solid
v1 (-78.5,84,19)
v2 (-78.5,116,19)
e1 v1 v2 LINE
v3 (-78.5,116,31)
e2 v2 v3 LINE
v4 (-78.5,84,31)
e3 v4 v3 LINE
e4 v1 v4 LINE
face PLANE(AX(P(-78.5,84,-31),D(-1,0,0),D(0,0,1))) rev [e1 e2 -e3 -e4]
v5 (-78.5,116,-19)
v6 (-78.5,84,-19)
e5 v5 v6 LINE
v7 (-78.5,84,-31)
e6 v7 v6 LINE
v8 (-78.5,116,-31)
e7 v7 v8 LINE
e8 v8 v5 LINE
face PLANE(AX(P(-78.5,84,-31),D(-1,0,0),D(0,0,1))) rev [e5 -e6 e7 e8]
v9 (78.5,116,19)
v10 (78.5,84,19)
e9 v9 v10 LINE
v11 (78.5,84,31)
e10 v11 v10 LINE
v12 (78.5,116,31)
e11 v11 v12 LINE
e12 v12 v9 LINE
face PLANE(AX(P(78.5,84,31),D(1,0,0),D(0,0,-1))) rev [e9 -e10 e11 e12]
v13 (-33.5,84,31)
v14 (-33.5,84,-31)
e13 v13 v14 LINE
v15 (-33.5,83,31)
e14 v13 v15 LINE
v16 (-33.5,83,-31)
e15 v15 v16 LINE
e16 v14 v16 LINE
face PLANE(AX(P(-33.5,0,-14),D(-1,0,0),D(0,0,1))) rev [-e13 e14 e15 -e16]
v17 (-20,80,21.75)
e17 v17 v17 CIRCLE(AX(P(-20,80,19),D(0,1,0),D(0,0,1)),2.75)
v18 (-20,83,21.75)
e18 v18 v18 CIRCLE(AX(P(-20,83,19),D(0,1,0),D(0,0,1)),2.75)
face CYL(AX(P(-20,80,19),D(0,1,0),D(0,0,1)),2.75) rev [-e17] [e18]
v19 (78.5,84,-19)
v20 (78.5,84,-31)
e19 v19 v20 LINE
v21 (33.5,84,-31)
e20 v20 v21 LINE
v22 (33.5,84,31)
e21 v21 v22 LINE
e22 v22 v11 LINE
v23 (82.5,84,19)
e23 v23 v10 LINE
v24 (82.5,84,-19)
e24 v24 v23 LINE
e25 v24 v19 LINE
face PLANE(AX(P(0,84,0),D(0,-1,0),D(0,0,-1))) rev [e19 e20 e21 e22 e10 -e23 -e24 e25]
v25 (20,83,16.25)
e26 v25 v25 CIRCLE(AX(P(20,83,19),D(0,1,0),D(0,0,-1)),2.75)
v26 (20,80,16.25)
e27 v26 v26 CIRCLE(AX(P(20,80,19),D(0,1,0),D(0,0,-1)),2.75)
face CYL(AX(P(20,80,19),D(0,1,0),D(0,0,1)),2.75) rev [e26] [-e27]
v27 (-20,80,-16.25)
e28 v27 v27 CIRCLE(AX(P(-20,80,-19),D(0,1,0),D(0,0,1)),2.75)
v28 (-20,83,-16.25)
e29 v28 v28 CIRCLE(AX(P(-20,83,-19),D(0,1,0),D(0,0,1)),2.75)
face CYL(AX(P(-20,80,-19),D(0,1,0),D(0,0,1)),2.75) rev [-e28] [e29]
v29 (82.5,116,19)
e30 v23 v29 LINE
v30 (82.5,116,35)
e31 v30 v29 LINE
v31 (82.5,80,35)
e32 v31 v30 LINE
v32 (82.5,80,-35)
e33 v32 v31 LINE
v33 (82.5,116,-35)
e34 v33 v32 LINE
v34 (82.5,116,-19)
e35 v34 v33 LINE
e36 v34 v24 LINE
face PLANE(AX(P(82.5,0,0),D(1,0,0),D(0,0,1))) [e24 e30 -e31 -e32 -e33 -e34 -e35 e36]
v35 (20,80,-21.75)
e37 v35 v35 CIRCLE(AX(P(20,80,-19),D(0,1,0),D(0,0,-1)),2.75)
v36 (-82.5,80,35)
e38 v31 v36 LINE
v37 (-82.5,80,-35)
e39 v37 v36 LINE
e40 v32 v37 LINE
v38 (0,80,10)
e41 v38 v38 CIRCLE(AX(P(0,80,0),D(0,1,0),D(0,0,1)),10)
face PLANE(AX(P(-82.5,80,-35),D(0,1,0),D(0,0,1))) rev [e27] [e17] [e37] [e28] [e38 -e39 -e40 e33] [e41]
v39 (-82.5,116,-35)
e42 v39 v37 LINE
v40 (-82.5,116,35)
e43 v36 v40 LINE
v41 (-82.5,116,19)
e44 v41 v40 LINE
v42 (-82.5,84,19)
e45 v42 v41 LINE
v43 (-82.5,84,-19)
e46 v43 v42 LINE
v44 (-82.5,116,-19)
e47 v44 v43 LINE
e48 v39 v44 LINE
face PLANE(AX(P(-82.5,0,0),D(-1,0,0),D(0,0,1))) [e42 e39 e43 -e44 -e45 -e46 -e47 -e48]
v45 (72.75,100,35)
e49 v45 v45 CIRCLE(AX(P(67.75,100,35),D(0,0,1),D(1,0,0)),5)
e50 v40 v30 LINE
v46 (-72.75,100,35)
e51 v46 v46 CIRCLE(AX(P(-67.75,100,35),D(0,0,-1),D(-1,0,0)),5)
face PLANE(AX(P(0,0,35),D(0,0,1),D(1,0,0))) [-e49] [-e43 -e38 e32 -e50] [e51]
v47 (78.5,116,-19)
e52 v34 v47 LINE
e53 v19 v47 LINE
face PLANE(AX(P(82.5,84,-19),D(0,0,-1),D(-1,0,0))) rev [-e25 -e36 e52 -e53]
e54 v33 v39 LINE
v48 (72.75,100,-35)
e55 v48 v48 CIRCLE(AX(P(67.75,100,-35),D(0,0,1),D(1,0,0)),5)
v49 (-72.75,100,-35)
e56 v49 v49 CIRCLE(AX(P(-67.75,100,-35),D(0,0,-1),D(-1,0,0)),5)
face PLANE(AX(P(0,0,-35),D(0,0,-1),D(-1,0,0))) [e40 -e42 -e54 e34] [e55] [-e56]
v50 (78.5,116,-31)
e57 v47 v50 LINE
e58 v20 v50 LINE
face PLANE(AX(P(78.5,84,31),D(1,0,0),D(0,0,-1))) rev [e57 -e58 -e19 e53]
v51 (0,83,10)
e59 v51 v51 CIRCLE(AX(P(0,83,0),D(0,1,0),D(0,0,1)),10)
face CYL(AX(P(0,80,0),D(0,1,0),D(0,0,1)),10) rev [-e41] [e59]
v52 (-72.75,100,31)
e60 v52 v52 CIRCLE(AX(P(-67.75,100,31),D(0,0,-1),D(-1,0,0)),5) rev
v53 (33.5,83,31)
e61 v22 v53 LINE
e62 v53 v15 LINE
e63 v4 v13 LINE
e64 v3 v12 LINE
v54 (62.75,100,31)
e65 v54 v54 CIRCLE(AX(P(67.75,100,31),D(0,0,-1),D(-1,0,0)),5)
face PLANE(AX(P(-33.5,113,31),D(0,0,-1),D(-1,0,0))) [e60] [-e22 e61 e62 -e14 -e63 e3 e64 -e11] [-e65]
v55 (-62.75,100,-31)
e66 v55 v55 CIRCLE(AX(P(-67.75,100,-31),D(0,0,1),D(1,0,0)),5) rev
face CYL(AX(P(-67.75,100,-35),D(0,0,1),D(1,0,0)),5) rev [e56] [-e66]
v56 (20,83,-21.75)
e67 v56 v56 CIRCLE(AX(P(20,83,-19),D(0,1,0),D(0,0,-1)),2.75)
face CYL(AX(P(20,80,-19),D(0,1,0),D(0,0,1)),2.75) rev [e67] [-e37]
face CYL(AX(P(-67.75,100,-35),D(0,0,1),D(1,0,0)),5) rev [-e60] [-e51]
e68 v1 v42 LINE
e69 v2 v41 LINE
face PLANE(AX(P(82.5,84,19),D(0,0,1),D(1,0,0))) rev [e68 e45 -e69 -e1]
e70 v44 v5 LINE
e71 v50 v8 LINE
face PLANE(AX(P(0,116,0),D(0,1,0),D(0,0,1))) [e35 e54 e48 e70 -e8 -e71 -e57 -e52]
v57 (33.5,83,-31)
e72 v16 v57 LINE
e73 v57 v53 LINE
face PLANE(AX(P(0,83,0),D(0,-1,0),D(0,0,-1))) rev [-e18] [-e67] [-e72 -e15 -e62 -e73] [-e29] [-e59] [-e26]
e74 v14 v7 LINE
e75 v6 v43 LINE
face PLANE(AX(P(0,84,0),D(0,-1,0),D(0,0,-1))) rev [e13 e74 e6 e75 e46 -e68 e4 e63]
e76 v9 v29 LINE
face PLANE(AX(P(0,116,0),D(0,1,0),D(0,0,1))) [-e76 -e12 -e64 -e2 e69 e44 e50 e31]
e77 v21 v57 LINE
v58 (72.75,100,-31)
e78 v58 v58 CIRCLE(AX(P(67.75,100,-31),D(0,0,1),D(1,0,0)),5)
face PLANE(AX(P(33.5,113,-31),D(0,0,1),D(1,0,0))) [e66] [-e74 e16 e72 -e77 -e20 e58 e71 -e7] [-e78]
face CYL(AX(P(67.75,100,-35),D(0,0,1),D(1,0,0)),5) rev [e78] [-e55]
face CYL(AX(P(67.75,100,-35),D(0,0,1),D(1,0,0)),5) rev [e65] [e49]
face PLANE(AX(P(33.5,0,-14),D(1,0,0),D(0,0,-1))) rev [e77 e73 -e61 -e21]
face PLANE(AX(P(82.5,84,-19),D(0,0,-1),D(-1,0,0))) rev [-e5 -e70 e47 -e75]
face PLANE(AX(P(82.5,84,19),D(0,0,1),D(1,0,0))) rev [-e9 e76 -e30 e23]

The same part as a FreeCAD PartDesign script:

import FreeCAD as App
import Part
import Sketcher


def add_polygon(sketch, points):
    """Adds a closed chain of lines whose ends are joined by coincident constraints."""
    first, n = sketch.GeometryCount, len(points)
    for a, b in zip(points, points[1:] + points[:1]):
        sketch.addGeometry(Part.LineSegment(App.Vector(*a, 0), App.Vector(*b, 0)), False)
    for i in range(n):
        sketch.addConstraint(Sketcher.Constraint("Coincident", first + i, 2, first + (i + 1) % n, 1))

doc = App.newDocument("Part")
body = doc.addObject("PartDesign::Body", "Body")

sketch1 = doc.addObject("Sketcher::SketchObject", "Sketch")
body.addObject(sketch1)
sketch1.AttachmentSupport = (doc.XZ_Plane, [""])
sketch1.MapMode = "FlatFace"
add_polygon(sketch1, [(-37.5, -20), (-37.5, 20), (37.5, 20), (37.5, -20)])
sketch1.addGeometry(Part.Circle(App.Vector(-30, 8.2, 0), App.Vector(0, 0, 1), 1.7), False)
sketch1.addGeometry(Part.Circle(App.Vector(-12, 8.2, 0), App.Vector(0, 0, 1), 1.7), False)
sketch1.addGeometry(Part.Circle(App.Vector(12, 8.2, 0), App.Vector(0, 0, 1), 1.7), False)
sketch1.addGeometry(Part.Circle(App.Vector(30, 8.2, 0), App.Vector(0, 0, 1), 1.7), False)
sketch1.addGeometry(Part.Circle(App.Vector(-21, 0, 0), App.Vector(0, 0, 1), 5), False)
add_polygon(sketch1, [(5, 10), (-5, 10), (-5, -10), (5, -10)])
sketch1.addGeometry(Part.Circle(App.Vector(-30, -8.2, 0), App.Vector(0, 0, 1), 1.7), False)
sketch1.addGeometry(Part.Circle(App.Vector(-12, -8.2, 0), App.Vector(0, 0, 1), 1.7), False)
sketch1.addGeometry(Part.Circle(App.Vector(21, 0, 0), App.Vector(0, 0, 1), 5), False)
sketch1.addGeometry(Part.Circle(App.Vector(12, -8.2, 0), App.Vector(0, 0, 1), 1.7), False)
sketch1.addGeometry(Part.Circle(App.Vector(30, -8.2, 0), App.Vector(0, 0, 1), 1.7), False)
sketch1.addConstraint(Sketcher.Constraint("Vertical", 0))
sketch1.addConstraint(Sketcher.Constraint("Horizontal", 1))
sketch1.addConstraint(Sketcher.Constraint("Vertical", 2))
sketch1.addConstraint(Sketcher.Constraint("Horizontal", 3))
sketch1.addConstraint(Sketcher.Constraint("Horizontal", 9))
sketch1.addConstraint(Sketcher.Constraint("Vertical", 10))
sketch1.addConstraint(Sketcher.Constraint("Horizontal", 11))
sketch1.addConstraint(Sketcher.Constraint("Vertical", 12))
sketch1.addConstraint(Sketcher.Constraint("Equal", 4, 5))
sketch1.addConstraint(Sketcher.Constraint("Equal", 5, 6))
sketch1.addConstraint(Sketcher.Constraint("Equal", 6, 7))
sketch1.addConstraint(Sketcher.Constraint("Equal", 7, 13))
sketch1.addConstraint(Sketcher.Constraint("Equal", 13, 14))
sketch1.addConstraint(Sketcher.Constraint("Equal", 8, 15))
sketch1.addConstraint(Sketcher.Constraint("Equal", 14, 16))
sketch1.addConstraint(Sketcher.Constraint("Equal", 16, 17))
sketch1.addConstraint(Sketcher.Constraint("Symmetric", 7, 3, 13, 3, -1, 1))
sketch1.addConstraint(Sketcher.Constraint("Symmetric", 6, 3, 14, 3, -1, 1))
sketch1.addConstraint(Sketcher.Constraint("Symmetric", 8, 3, 15, 3, -1, 1))
sketch1.addConstraint(Sketcher.Constraint("Symmetric", 5, 3, 16, 3, -1, 1))
sketch1.addConstraint(Sketcher.Constraint("Symmetric", 4, 3, 17, 3, -1, 1))
sketch1.addConstraint(Sketcher.Constraint("Symmetric", 0, 2, 2, 2, -1, 1))
sketch1.addConstraint(Sketcher.Constraint("Symmetric", 9, 2, 11, 2, -1, 1))
sketch1.addConstraint(Sketcher.Constraint("Symmetric", 5, 3, 6, 3, -2))
sketch1.addConstraint(Sketcher.Constraint("Symmetric", 4, 3, 7, 3, -2))
sketch1.addConstraint(Sketcher.Constraint("PointOnObject", 8, 3, -1))
sketch1.addConstraint(Sketcher.Constraint("Horizontal", 4, 3, 5, 3))
sketch1.addConstraint(Sketcher.Constraint("Diameter", 8, 10.0))
sketch1.addConstraint(Sketcher.Constraint("Diameter", 4, 3.4))
sketch1.addConstraint(Sketcher.Constraint("DistanceX", 1, 1, 1, 2, 75.0))
sketch1.addConstraint(Sketcher.Constraint("DistanceX", 9, 2, 9, 1, 10.0))
sketch1.addConstraint(Sketcher.Constraint("DistanceY", 0, 1, 0, 2, 40.0))
sketch1.addConstraint(Sketcher.Constraint("DistanceY", 10, 2, 10, 1, 20.0))
sketch1.addConstraint(Sketcher.Constraint("DistanceX", 4, 3, -1, 1, 30.0))
sketch1.addConstraint(Sketcher.Constraint("DistanceX", 5, 3, -1, 1, 12.0))
sketch1.addConstraint(Sketcher.Constraint("DistanceX", 8, 3, -1, 1, 21.0))
sketch1.addConstraint(Sketcher.Constraint("DistanceY", 13, 3, 4, 3, 16.5))
pad1 = doc.addObject("PartDesign::Pad", "Pad")
body.addObject(pad1)
pad1.Profile = sketch1
pad1.Length = 3
pad1.Reversed = True

sketch2 = doc.addObject("Sketcher::SketchObject", "Sketch001")
body.addObject(sketch2)
sketch2.AttachmentSupport = (doc.XZ_Plane, [""])
sketch2.MapMode = "FlatFace"
sketch2.AttachmentOffset = App.Placement(App.Vector(0, 0, -3), App.Rotation())
add_polygon(sketch2, [(-34, -14), (-34, 14), (34, 14), (34, -14)])
sketch2.addConstraint(Sketcher.Constraint("Vertical", 0))
sketch2.addConstraint(Sketcher.Constraint("Horizontal", 1))
sketch2.addConstraint(Sketcher.Constraint("Vertical", 2))
sketch2.addConstraint(Sketcher.Constraint("Horizontal", 3))
sketch2.addConstraint(Sketcher.Constraint("Symmetric", 0, 2, 2, 2, -1, 1))
sketch2.addConstraint(Sketcher.Constraint("DistanceX", 1, 1, 1, 2, 67.0))
sketch2.addConstraint(Sketcher.Constraint("DistanceY", 0, 1, 0, 2, 28.0))
pocket1 = doc.addObject("PartDesign::Pocket", "Pocket")
body.addObject(pocket1)
pocket1.Profile = sketch2
pocket1.Type = "ThroughAll"
pocket1.Midplane = True

sketch3 = doc.addObject("Sketcher::SketchObject", "Sketch002")
body.addObject(sketch3)
sketch3.AttachmentSupport = (doc.XZ_Plane, [""])
sketch3.MapMode = "FlatFace"
sketch3.AttachmentOffset = App.Placement(App.Vector(0, 0, -3), App.Rotation())
add_polygon(sketch3, [(38, 35), (38, -35), (-38, -35), (-38, 35)])
add_polygon(sketch3, [(-34, -20), (34, -20), (34, 20), (-34, 20)])
sketch3.addConstraint(Sketcher.Constraint("Vertical", 0))
sketch3.addConstraint(Sketcher.Constraint("Horizontal", 1))
sketch3.addConstraint(Sketcher.Constraint("Vertical", 2))
sketch3.addConstraint(Sketcher.Constraint("Horizontal", 3))
sketch3.addConstraint(Sketcher.Constraint("Horizontal", 4))
sketch3.addConstraint(Sketcher.Constraint("Vertical", 5))
sketch3.addConstraint(Sketcher.Constraint("Horizontal", 6))
sketch3.addConstraint(Sketcher.Constraint("Vertical", 7))
sketch3.addConstraint(Sketcher.Constraint("Symmetric", 0, 2, 2, 2, -1, 1))
sketch3.addConstraint(Sketcher.Constraint("Symmetric", 4, 2, 6, 2, -1, 1))
sketch3.addConstraint(Sketcher.Constraint("DistanceX", 1, 2, 1, 1, 75.0))
sketch3.addConstraint(Sketcher.Constraint("DistanceX", 4, 1, 4, 2, 67.0))
sketch3.addConstraint(Sketcher.Constraint("DistanceY", 0, 2, 0, 1, 70.0))
sketch3.addConstraint(Sketcher.Constraint("DistanceY", 5, 1, 5, 2, 40.0))
pad2 = doc.addObject("PartDesign::Pad", "Pad001")
body.addObject(pad2)
pad2.Profile = sketch3
pad2.Type = "TwoLengths"
pad2.Length = 110
pad2.Length2 = 3
pad2.Reversed = True

sketch4 = doc.addObject("Sketcher::SketchObject", "Sketch003")
body.addObject(sketch4)
sketch4.AttachmentSupport = (doc.XZ_Plane, [""])
sketch4.MapMode = "FlatFace"
sketch4.AttachmentOffset = App.Placement(App.Vector(0, 0, -3), App.Rotation())
add_polygon(sketch4, [(-33.5, 20), (-33.5, 31), (33.5, 31), (33.5, 20)])
add_polygon(sketch4, [(-33.5, -31), (-33.5, -20), (33.5, -20), (33.5, -31)])
sketch4.addConstraint(Sketcher.Constraint("Vertical", 0))
sketch4.addConstraint(Sketcher.Constraint("Horizontal", 1))
sketch4.addConstraint(Sketcher.Constraint("Vertical", 2))
sketch4.addConstraint(Sketcher.Constraint("Horizontal", 3))
sketch4.addConstraint(Sketcher.Constraint("Vertical", 4))
sketch4.addConstraint(Sketcher.Constraint("Horizontal", 5))
sketch4.addConstraint(Sketcher.Constraint("Vertical", 6))
sketch4.addConstraint(Sketcher.Constraint("Horizontal", 7))
sketch4.addConstraint(Sketcher.Constraint("Symmetric", 2, 2, 4, 2, -1, 1))
sketch4.addConstraint(Sketcher.Constraint("Symmetric", 0, 2, 6, 2, -1, 1))
sketch4.addConstraint(Sketcher.Constraint("Vertical", 3, 2, 4, 2))
sketch4.addConstraint(Sketcher.Constraint("DistanceX", 1, 1, 1, 2, 67.0))
sketch4.addConstraint(Sketcher.Constraint("DistanceY", 0, 1, 0, 2, 11.0))
sketch4.addConstraint(Sketcher.Constraint("DistanceY", -1, 1, 0, 2, 31.0))
pocket2 = doc.addObject("PartDesign::Pocket", "Pocket001")
body.addObject(pocket2)
pocket2.Profile = sketch4
pocket2.Type = "ThroughAll"

sketch5 = doc.addObject("Sketcher::SketchObject", "Sketch004")
body.addObject(sketch5)
sketch5.AttachmentSupport = (doc.YZ_Plane, [""])
sketch5.MapMode = "FlatFace"
sketch5.AttachmentOffset = App.Placement(App.Vector(0, 0, -37.5), App.Rotation())
add_polygon(sketch5, [(113, -35), (76, -35), (76, 35), (113, 35)])
sketch5.addConstraint(Sketcher.Constraint("Horizontal", 0))
sketch5.addConstraint(Sketcher.Constraint("Vertical", 1))
sketch5.addConstraint(Sketcher.Constraint("Horizontal", 2))
sketch5.addConstraint(Sketcher.Constraint("Vertical", 3))
sketch5.addConstraint(Sketcher.Constraint("DistanceX", 0, 2, 0, 1, 37.0))
sketch5.addConstraint(Sketcher.Constraint("DistanceY", 1, 1, 1, 2, 70.0))
sketch5.addConstraint(Sketcher.Constraint("DistanceX", -1, 1, 0, 2, 76.0))
sketch5.addConstraint(Sketcher.Constraint("DistanceY", 0, 2, -1, 1, 35.0))
pad3 = doc.addObject("PartDesign::Pad", "Pad002")
body.addObject(pad3)
pad3.Profile = sketch5
pad3.Length = 45
pad3.Reversed = True
doc.recompute()

mirrored = doc.addObject("PartDesign::Mirrored", "Mirrored")
body.addObject(mirrored)
mirrored.Originals = [pad3]
mirrored.MirrorPlane = (doc.YZ_Plane, [""])
body.Tip = mirrored

sketch6 = doc.addObject("Sketcher::SketchObject", "Sketch005")
body.addObject(sketch6)
sketch6.AttachmentSupport = (doc.XZ_Plane, [""])
sketch6.MapMode = "FlatFace"
sketch6.AttachmentOffset = App.Placement(App.Vector(0, 0, -113), App.Rotation())
add_polygon(sketch6, [(-78, -31), (-78, 31), (-34, 31), (-34, -31)])
add_polygon(sketch6, [(34, -31), (34, 31), (78, 31), (78, -31)])
sketch6.addConstraint(Sketcher.Constraint("Vertical", 0))
sketch6.addConstraint(Sketcher.Constraint("Horizontal", 1))
sketch6.addConstraint(Sketcher.Constraint("Vertical", 2))
sketch6.addConstraint(Sketcher.Constraint("Horizontal", 3))
sketch6.addConstraint(Sketcher.Constraint("Vertical", 4))
sketch6.addConstraint(Sketcher.Constraint("Horizontal", 5))
sketch6.addConstraint(Sketcher.Constraint("Vertical", 6))
sketch6.addConstraint(Sketcher.Constraint("Horizontal", 7))
sketch6.addConstraint(Sketcher.Constraint("Symmetric", 2, 2, 4, 2, -1, 1))
sketch6.addConstraint(Sketcher.Constraint("Symmetric", 0, 2, 6, 2, -1, 1))
sketch6.addConstraint(Sketcher.Constraint("Horizontal", 1, 2, 4, 2))
sketch6.addConstraint(Sketcher.Constraint("DistanceX", 1, 1, 1, 2, 45.0))
sketch6.addConstraint(Sketcher.Constraint("DistanceY", 0, 1, 0, 2, 62.0))
sketch6.addConstraint(Sketcher.Constraint("DistanceX", 1, 2, 4, 2, 67.0))
pocket3 = doc.addObject("PartDesign::Pocket", "Pocket002")
body.addObject(pocket3)
pocket3.Profile = sketch6
pocket3.Length = 29
pocket3.Reversed = True

sketch7 = doc.addObject("Sketcher::SketchObject", "Sketch006")
body.addObject(sketch7)
sketch7.AttachmentSupport = (doc.XY_Plane, [""])
sketch7.MapMode = "FlatFace"
sketch7.AttachmentOffset = App.Placement(App.Vector(0, 0, 35), App.Rotation())
add_polygon(sketch7, [(-82.5, 80), (-82.5, 76), (-37.5, 76), (-37.5, 80)])
add_polygon(sketch7, [(37.5, 80), (37.5, 76), (82.5, 76), (82.5, 80)])
sketch7.addConstraint(Sketcher.Constraint("Vertical", 0))
sketch7.addConstraint(Sketcher.Constraint("Horizontal", 1))
sketch7.addConstraint(Sketcher.Constraint("Vertical", 2))
sketch7.addConstraint(Sketcher.Constraint("Horizontal", 3))
sketch7.addConstraint(Sketcher.Constraint("Vertical", 4))
sketch7.addConstraint(Sketcher.Constraint("Horizontal", 5))
sketch7.addConstraint(Sketcher.Constraint("Vertical", 6))
sketch7.addConstraint(Sketcher.Constraint("Horizontal", 7))
sketch7.addConstraint(Sketcher.Constraint("Symmetric", 1, 2, 4, 2, -2))
sketch7.addConstraint(Sketcher.Constraint("Symmetric", 3, 2, 6, 2, -2))
sketch7.addConstraint(Sketcher.Constraint("DistanceX", 1, 1, 1, 2, 45.0))
sketch7.addConstraint(Sketcher.Constraint("DistanceY", 0, 2, 0, 1, 4.0))
sketch7.addConstraint(Sketcher.Constraint("DistanceY", -1, 1, 0, 2, 76.0))
sketch7.addConstraint(Sketcher.Constraint("DistanceX", 1, 2, 4, 2, 75.0))
pocket4 = doc.addObject("PartDesign::Pocket", "Pocket003")
body.addObject(pocket4)
pocket4.Profile = sketch7
pocket4.Type = "ThroughAll"

sketch8 = doc.addObject("Sketcher::SketchObject", "Sketch007")
body.addObject(sketch8)
sketch8.AttachmentSupport = (doc.YZ_Plane, [""])
sketch8.MapMode = "FlatFace"
sketch8.AttachmentOffset = App.Placement(App.Vector(0, 0, -82.5), App.Rotation())
add_polygon(sketch8, [(112, -19), (84, -19), (84, 19), (112, 19)])
sketch8.addConstraint(Sketcher.Constraint("Horizontal", 0))
sketch8.addConstraint(Sketcher.Constraint("Vertical", 1))
sketch8.addConstraint(Sketcher.Constraint("Horizontal", 2))
sketch8.addConstraint(Sketcher.Constraint("Vertical", 3))
sketch8.addConstraint(Sketcher.Constraint("DistanceY", 1, 1, 1, 2, 38.0))
sketch8.addConstraint(Sketcher.Constraint("DistanceX", 0, 2, 0, 1, 28.5))
sketch8.addConstraint(Sketcher.Constraint("DistanceX", -1, 1, 0, 2, 84.0))
sketch8.addConstraint(Sketcher.Constraint("DistanceY", 0, 2, -1, 1, 19.0))
pocket5 = doc.addObject("PartDesign::Pocket", "Pocket004")
body.addObject(pocket5)
pocket5.Profile = sketch8
pocket5.Type = "ThroughAll"
pocket5.Reversed = True

sketch9 = doc.addObject("Sketcher::SketchObject", "Sketch008")
body.addObject(sketch9)
sketch9.AttachmentSupport = (doc.XZ_Plane, [""])
sketch9.MapMode = "FlatFace"
sketch9.AttachmentOffset = App.Placement(App.Vector(0, 0, -84), App.Rotation())
add_polygon(sketch9, [(-57, -19), (-57, 19), (-52, 19), (-52, -19)])
sketch9.addConstraint(Sketcher.Constraint("Vertical", 0))
sketch9.addConstraint(Sketcher.Constraint("Horizontal", 1))
sketch9.addConstraint(Sketcher.Constraint("Vertical", 2))
sketch9.addConstraint(Sketcher.Constraint("Horizontal", 3))
sketch9.addConstraint(Sketcher.Constraint("DistanceX", 1, 1, 1, 2, 5.0))
sketch9.addConstraint(Sketcher.Constraint("DistanceY", 0, 1, 0, 2, 38.0))
sketch9.addConstraint(Sketcher.Constraint("DistanceX", 0, 2, -1, 1, 57.0))
sketch9.addConstraint(Sketcher.Constraint("DistanceY", -1, 1, 0, 2, 19.0))
pad4 = doc.addObject("PartDesign::Pad", "Pad003")
body.addObject(pad4)
pad4.Profile = sketch9
pad4.Length = 32
pad4.Reversed = True

sketch10 = doc.addObject("Sketcher::SketchObject", "Sketch009")
body.addObject(sketch10)
sketch10.AttachmentSupport = (doc.YZ_Plane, [""])
sketch10.MapMode = "FlatFace"
sketch10.AttachmentOffset = App.Placement(App.Vector(0, 0, -57), App.Rotation())
sketch10.addGeometry(Part.Circle(App.Vector(98.2, 0, 0), App.Vector(0, 0, 1), 5), False)
sketch10.addGeometry(Part.Circle(App.Vector(106.5, -9, 0), App.Vector(0, 0, 1), 1.7), False)
sketch10.addGeometry(Part.Circle(App.Vector(106.5, 9, 0), App.Vector(0, 0, 1), 1.7), False)
sketch10.addGeometry(Part.Circle(App.Vector(90, 9, 0), App.Vector(0, 0, 1), 1.7), False)
sketch10.addGeometry(Part.Circle(App.Vector(90, -9, 0), App.Vector(0, 0, 1), 1.7), False)
sketch10.addConstraint(Sketcher.Constraint("Equal", 1, 2))
sketch10.addConstraint(Sketcher.Constraint("Equal", 2, 3))
sketch10.addConstraint(Sketcher.Constraint("Equal", 3, 4))
sketch10.addConstraint(Sketcher.Constraint("Symmetric", 1, 3, 2, 3, -1))
sketch10.addConstraint(Sketcher.Constraint("Symmetric", 3, 3, 4, 3, -1))
sketch10.addConstraint(Sketcher.Constraint("PointOnObject", 0, 3, -1))
sketch10.addConstraint(Sketcher.Constraint("Horizontal", 2, 3, 3, 3))
sketch10.addConstraint(Sketcher.Constraint("Diameter", 0, 10.0))
sketch10.addConstraint(Sketcher.Constraint("Diameter", 1, 3.4))
sketch10.addConstraint(Sketcher.Constraint("DistanceY", 1, 3, -1, 1, 9.0))
sketch10.addConstraint(Sketcher.Constraint("DistanceX", -1, 1, 3, 3, 90.0))
sketch10.addConstraint(Sketcher.Constraint("DistanceX", -1, 1, 1, 3, 106.5))
sketch10.addConstraint(Sketcher.Constraint("DistanceX", -1, 1, 0, 3, 98.25))
pocket6 = doc.addObject("PartDesign::Pocket", "Pocket005")
body.addObject(pocket6)
pocket6.Profile = sketch10
pocket6.Length = 32
pocket6.Reversed = True
doc.recompute()

mirrored2 = doc.addObject("PartDesign::Mirrored", "Mirrored001")
body.addObject(mirrored2)
mirrored2.Originals = [pad4, pocket6]
mirrored2.MirrorPlane = (doc.YZ_Plane, [""])
body.Tip = mirrored2

sketch11 = doc.addObject("Sketcher::SketchObject", "Sketch010")
body.addObject(sketch11)
sketch11.AttachmentSupport = (doc.XZ_Plane, [""])
sketch11.MapMode = "FlatFace"
sketch11.AttachmentOffset = App.Placement(App.Vector(0, 0, -113), App.Rotation())
add_polygon(sketch11, [(-82, -35), (-82, 35), (82, 35), (82, -35)])
add_polygon(sketch11, [(78, 31), (-78, 31), (-78, -31), (78, -31)])
sketch11.addConstraint(Sketcher.Constraint("Vertical", 0))
sketch11.addConstraint(Sketcher.Constraint("Horizontal", 1))
sketch11.addConstraint(Sketcher.Constraint("Vertical", 2))
sketch11.addConstraint(Sketcher.Constraint("Horizontal", 3))
sketch11.addConstraint(Sketcher.Constraint("Horizontal", 4))
sketch11.addConstraint(Sketcher.Constraint("Vertical", 5))
sketch11.addConstraint(Sketcher.Constraint("Horizontal", 6))
sketch11.addConstraint(Sketcher.Constraint("Vertical", 7))
sketch11.addConstraint(Sketcher.Constraint("Symmetric", 0, 2, 2, 2, -1, 1))
sketch11.addConstraint(Sketcher.Constraint("Symmetric", 4, 2, 6, 2, -1, 1))
sketch11.addConstraint(Sketcher.Constraint("DistanceX", 1, 1, 1, 2, 165.0))
sketch11.addConstraint(Sketcher.Constraint("DistanceX", 4, 2, 4, 1, 157.0))
sketch11.addConstraint(Sketcher.Constraint("DistanceY", 0, 1, 0, 2, 70.0))
sketch11.addConstraint(Sketcher.Constraint("DistanceY", 5, 2, 5, 1, 62.0))
pad5 = doc.addObject("PartDesign::Pad", "Pad004")
body.addObject(pad5)
pad5.Profile = sketch11
pad5.Length = 3
pad5.Reversed = True

sketch12 = doc.addObject("Sketcher::SketchObject", "Sketch011")
body.addObject(sketch12)
sketch12.AttachmentSupport = (doc.XY_Plane, [""])
sketch12.MapMode = "FlatFace"
sketch12.AttachmentOffset = App.Placement(App.Vector(0, 0, 35), App.Rotation())
add_polygon(sketch12, [(-10, 14), (-10, 9.2), (10, 9.2), (10, 14)])
sketch12.addConstraint(Sketcher.Constraint("Vertical", 0))
sketch12.addConstraint(Sketcher.Constraint("Horizontal", 1))
sketch12.addConstraint(Sketcher.Constraint("Vertical", 2))
sketch12.addConstraint(Sketcher.Constraint("Horizontal", 3))
sketch12.addConstraint(Sketcher.Constraint("DistanceX", 1, 1, 1, 2, 20.0))
sketch12.addConstraint(Sketcher.Constraint("DistanceX", 0, 2, -1, 1, 10.0))
sketch12.addConstraint(Sketcher.Constraint("DistanceY", 0, 2, 0, 1, 4.820648))
sketch12.addConstraint(Sketcher.Constraint("DistanceY", -1, 1, 0, 2, 9.225787))
pocket7 = doc.addObject("PartDesign::Pocket", "Pocket006")
body.addObject(pocket7)
pocket7.Profile = sketch12
pocket7.Type = "ThroughAll"

sketch13 = doc.addObject("Sketcher::SketchObject", "Sketch012")
body.addObject(sketch13)
sketch13.AttachmentSupport = (doc.XY_Plane, [""])
sketch13.MapMode = "FlatFace"
sketch13.AttachmentOffset = App.Placement(App.Vector(0, 0, 35), App.Rotation())
sketch13.addGeometry(Part.Circle(App.Vector(68, 100, 0), App.Vector(0, 0, 1), 5), False)
sketch13.addConstraint(Sketcher.Constraint("Diameter", 0, 10.0))
sketch13.addConstraint(Sketcher.Constraint("DistanceY", -1, 1, 0, 3, 100.0))
sketch13.addConstraint(Sketcher.Constraint("DistanceX", -1, 1, 0, 3, 67.75))
pocket8 = doc.addObject("PartDesign::Pocket", "Pocket007")
body.addObject(pocket8)
pocket8.Profile = sketch13
pocket8.Type = "ThroughAll"
doc.recompute()

mirrored3 = doc.addObject("PartDesign::Mirrored", "Mirrored002")
body.addObject(mirrored3)
mirrored3.Originals = [pocket8]
mirrored3.MirrorPlane = (doc.YZ_Plane, [""])
body.Tip = mirrored3
doc.recompute()

datumplane = doc.addObject("PartDesign::Plane", "DatumPlane")
body.addObject(datumplane)
datumplane.AttachmentSupport = (doc.XZ_Plane, [""])
datumplane.MapMode = "FlatFace"
datumplane.AttachmentOffset = App.Placement(App.Vector(0, 0, -116), App.Rotation())
mirrored4 = doc.addObject("PartDesign::Mirrored", "Mirrored003")
body.addObject(mirrored4)
mirrored4.Originals = [pad4, pocket6]
mirrored4.MirrorPlane = (datumplane, [""])
body.Tip = mirrored4

sketch14 = doc.addObject("Sketcher::SketchObject", "Sketch013")
body.addObject(sketch14)
sketch14.AttachmentSupport = (doc.XZ_Plane, [""])
sketch14.MapMode = "FlatFace"
sketch14.AttachmentOffset = App.Placement(App.Vector(0, 0, -148), App.Rotation())
add_polygon(sketch14, [(57, -19), (57, 19), (52, 19), (52, -19)])
sketch14.addConstraint(Sketcher.Constraint("Vertical", 0))
sketch14.addConstraint(Sketcher.Constraint("Horizontal", 1))
sketch14.addConstraint(Sketcher.Constraint("Vertical", 2))
sketch14.addConstraint(Sketcher.Constraint("Horizontal", 3))
sketch14.addConstraint(Sketcher.Constraint("DistanceX", 1, 2, 1, 1, 5.0))
sketch14.addConstraint(Sketcher.Constraint("DistanceY", 0, 1, 0, 2, 38.0))
sketch14.addConstraint(Sketcher.Constraint("DistanceX", -1, 1, 0, 2, 57.0))
sketch14.addConstraint(Sketcher.Constraint("DistanceY", -1, 1, 0, 2, 19.0))
pad6 = doc.addObject("PartDesign::Pad", "Pad005")
body.addObject(pad6)
pad6.Profile = sketch14
pad6.Length = 32

sketch15 = doc.addObject("Sketcher::SketchObject", "Sketch014")
body.addObject(sketch15)
sketch15.AttachmentSupport = (doc.YZ_Plane, [""])
sketch15.MapMode = "FlatFace"
sketch15.AttachmentOffset = App.Placement(App.Vector(0, 0, 57), App.Rotation())
sketch15.addGeometry(Part.Circle(App.Vector(133.8, 0, 0), App.Vector(0, 0, 1), 5), False)
sketch15.addGeometry(Part.Circle(App.Vector(125.5, -9, 0), App.Vector(0, 0, 1), 1.7), False)
sketch15.addGeometry(Part.Circle(App.Vector(125.5, 9, 0), App.Vector(0, 0, 1), 1.7), False)
sketch15.addGeometry(Part.Circle(App.Vector(142, 9, 0), App.Vector(0, 0, 1), 1.7), False)
sketch15.addGeometry(Part.Circle(App.Vector(142, -9, 0), App.Vector(0, 0, 1), 1.7), False)
sketch15.addConstraint(Sketcher.Constraint("Equal", 1, 2))
sketch15.addConstraint(Sketcher.Constraint("Equal", 2, 3))
sketch15.addConstraint(Sketcher.Constraint("Equal", 3, 4))
sketch15.addConstraint(Sketcher.Constraint("Symmetric", 1, 3, 2, 3, -1))
sketch15.addConstraint(Sketcher.Constraint("Symmetric", 3, 3, 4, 3, -1))
sketch15.addConstraint(Sketcher.Constraint("PointOnObject", 0, 3, -1))
sketch15.addConstraint(Sketcher.Constraint("Horizontal", 2, 3, 3, 3))
sketch15.addConstraint(Sketcher.Constraint("Diameter", 0, 10.0))
sketch15.addConstraint(Sketcher.Constraint("Diameter", 1, 3.4))
sketch15.addConstraint(Sketcher.Constraint("DistanceY", 1, 3, -1, 1, 9.0))
sketch15.addConstraint(Sketcher.Constraint("DistanceX", -1, 1, 3, 3, 142.0))
sketch15.addConstraint(Sketcher.Constraint("DistanceX", -1, 1, 1, 3, 125.5))
sketch15.addConstraint(Sketcher.Constraint("DistanceX", -1, 1, 0, 3, 133.75))
pocket9 = doc.addObject("PartDesign::Pocket", "Pocket008")
body.addObject(pocket9)
pocket9.Profile = sketch15
pocket9.Length = 32

sketch16 = doc.addObject("Sketcher::SketchObject", "Sketch015")
body.addObject(sketch16)
sketch16.AttachmentSupport = (doc.YZ_Plane, [""])
sketch16.MapMode = "FlatFace"
sketch16.AttachmentOffset = App.Placement(App.Vector(0, 0, 82.5), App.Rotation())
add_polygon(sketch16, [(116, 19), (112.5, 19), (112.5, -19), (116, -19)])
sketch16.addConstraint(Sketcher.Constraint("Horizontal", 0))
sketch16.addConstraint(Sketcher.Constraint("Vertical", 1))
sketch16.addConstraint(Sketcher.Constraint("Horizontal", 2))
sketch16.addConstraint(Sketcher.Constraint("Vertical", 3))
sketch16.addConstraint(Sketcher.Constraint("DistanceY", 1, 2, 1, 1, 38.0))
sketch16.addConstraint(Sketcher.Constraint("DistanceX", 0, 2, 0, 1, 3.5))
sketch16.addConstraint(Sketcher.Constraint("DistanceY", -1, 1, 0, 2, 19.0))
sketch16.addConstraint(Sketcher.Constraint("DistanceX", -1, 1, 2, 2, 116.0))
pocket10 = doc.addObject("PartDesign::Pocket", "Pocket009")
body.addObject(pocket10)
pocket10.Profile = sketch16
pocket10.Length = 10
doc.recompute()

mirrored5 = doc.addObject("PartDesign::Mirrored", "Mirrored004")
body.addObject(mirrored5)
mirrored5.Originals = [pocket10]
mirrored5.MirrorPlane = (doc.YZ_Plane, [""])
body.Tip = mirrored5

sketch17 = doc.addObject("Sketcher::SketchObject", "Sketch016")
body.addObject(sketch17)
sketch17.AttachmentSupport = (doc.XZ_Plane, [""])
sketch17.MapMode = "FlatFace"
sketch17.AttachmentOffset = App.Placement(App.Vector(0, 0, -3), App.Rotation())
sketch17.addGeometry(Part.Circle(App.Vector(-24, -17.5, 0), App.Vector(0, 0, 1), 1.2), False)
sketch17.addGeometry(Part.Circle(App.Vector(-12, -17.5, 0), App.Vector(0, 0, 1), 1.2), False)
sketch17.addGeometry(Part.Circle(App.Vector(12, -17.5, 0), App.Vector(0, 0, 1), 1.2), False)
sketch17.addGeometry(Part.Circle(App.Vector(-24, 17.5, 0), App.Vector(0, 0, 1), 1.2), False)
sketch17.addGeometry(Part.Circle(App.Vector(-12, 17.5, 0), App.Vector(0, 0, 1), 1.2), False)
sketch17.addGeometry(Part.Circle(App.Vector(24, -17.5, 0), App.Vector(0, 0, 1), 1.2), False)
sketch17.addGeometry(Part.Circle(App.Vector(12, 17.5, 0), App.Vector(0, 0, 1), 1.2), False)
sketch17.addGeometry(Part.Circle(App.Vector(24, 17.5, 0), App.Vector(0, 0, 1), 1.2), False)
sketch17.addConstraint(Sketcher.Constraint("Equal", 0, 1))
sketch17.addConstraint(Sketcher.Constraint("Equal", 1, 2))
sketch17.addConstraint(Sketcher.Constraint("Equal", 2, 3))
sketch17.addConstraint(Sketcher.Constraint("Equal", 3, 4))
sketch17.addConstraint(Sketcher.Constraint("Equal", 4, 5))
sketch17.addConstraint(Sketcher.Constraint("Equal", 5, 6))
sketch17.addConstraint(Sketcher.Constraint("Equal", 6, 7))
sketch17.addConstraint(Sketcher.Constraint("Symmetric", 2, 3, 4, 3, -1, 1))
sketch17.addConstraint(Sketcher.Constraint("Symmetric", 3, 3, 5, 3, -1, 1))
sketch17.addConstraint(Sketcher.Constraint("Symmetric", 1, 3, 6, 3, -1, 1))
sketch17.addConstraint(Sketcher.Constraint("Symmetric", 0, 3, 7, 3, -1, 1))
sketch17.addConstraint(Sketcher.Constraint("Symmetric", 1, 3, 2, 3, -2))
sketch17.addConstraint(Sketcher.Constraint("Symmetric", 0, 3, 5, 3, -2))
sketch17.addConstraint(Sketcher.Constraint("Horizontal", 0, 3, 1, 3))
sketch17.addConstraint(Sketcher.Constraint("Diameter", 0, 2.4))
sketch17.addConstraint(Sketcher.Constraint("DistanceX", 0, 3, -1, 1, 24.0))
sketch17.addConstraint(Sketcher.Constraint("DistanceX", 1, 3, -1, 1, 12.0))
sketch17.addConstraint(Sketcher.Constraint("DistanceY", 0, 3, 3, 3, 35.0))
pocket11 = doc.addObject("PartDesign::Pocket", "Pocket010")
body.addObject(pocket11)
pocket11.Profile = sketch17
pocket11.Length = 10
pocket11.Reversed = True

sketch18 = doc.addObject("Sketcher::SketchObject", "Sketch017")
body.addObject(sketch18)
sketch18.AttachmentSupport = (doc.XY_Plane, [""])
sketch18.MapMode = "FlatFace"
sketch18.AttachmentOffset = App.Placement(App.Vector(0, 0, 35), App.Rotation())
add_polygon(sketch18, [(28, 80), (28, 0), (38, 0), (38, 80)])
add_polygon(sketch18, [(-38, 80), (-38, 0), (-28, 0), (-28, 80)])
sketch18.addConstraint(Sketcher.Constraint("Vertical", 0))
sketch18.addConstraint(Sketcher.Constraint("Horizontal", 1))
sketch18.addConstraint(Sketcher.Constraint("Vertical", 2))
sketch18.addConstraint(Sketcher.Constraint("Horizontal", 3))
sketch18.addConstraint(Sketcher.Constraint("Vertical", 4))
sketch18.addConstraint(Sketcher.Constraint("Horizontal", 5))
sketch18.addConstraint(Sketcher.Constraint("Vertical", 6))
sketch18.addConstraint(Sketcher.Constraint("Horizontal", 7))
sketch18.addConstraint(Sketcher.Constraint("Symmetric", 1, 2, 4, 2, -1, 1))
sketch18.addConstraint(Sketcher.Constraint("Symmetric", 0, 2, 5, 2, -2))
sketch18.addConstraint(Sketcher.Constraint("Horizontal", 3, 2, 6, 2))
sketch18.addConstraint(Sketcher.Constraint("DistanceX", 1, 1, 1, 2, 10.0))
sketch18.addConstraint(Sketcher.Constraint("DistanceY", 0, 2, 0, 1, 80.0))
sketch18.addConstraint(Sketcher.Constraint("DistanceX", 4, 2, 0, 2, 65.0))
pocket12 = doc.addObject("PartDesign::Pocket", "Pocket011")
body.addObject(pocket12)
pocket12.Profile = sketch18
pocket12.Type = "ThroughAll"

sketch19 = doc.addObject("Sketcher::SketchObject", "Sketch018")
body.addObject(sketch19)
sketch19.AttachmentSupport = (doc.XY_Plane, [""])
sketch19.MapMode = "FlatFace"
sketch19.AttachmentOffset = App.Placement(App.Vector(0, 0, 35), App.Rotation())
add_polygon(sketch19, [(-28, 80), (-28, 0), (28, 0), (28, 80)])
sketch19.addConstraint(Sketcher.Constraint("Vertical", 0))
sketch19.addConstraint(Sketcher.Constraint("Horizontal", 1))
sketch19.addConstraint(Sketcher.Constraint("Vertical", 2))
sketch19.addConstraint(Sketcher.Constraint("Horizontal", 3))
sketch19.addConstraint(Sketcher.Constraint("Symmetric", 0, 2, 1, 2, -1, 1))
sketch19.addConstraint(Sketcher.Constraint("DistanceX", 1, 1, 1, 2, 55.0))
sketch19.addConstraint(Sketcher.Constraint("DistanceY", 0, 2, 0, 1, 80.0))
pocket13 = doc.addObject("PartDesign::Pocket", "Pocket012")
body.addObject(pocket13)
pocket13.Profile = sketch19
pocket13.Type = "ThroughAll"

sketch20 = doc.addObject("Sketcher::SketchObject", "Sketch019")
body.addObject(sketch20)
sketch20.AttachmentSupport = (doc.XZ_Plane, [""])
sketch20.MapMode = "FlatFace"
sketch20.AttachmentOffset = App.Placement(App.Vector(0, 0, -80), App.Rotation())
add_polygon(sketch20, [(-34, 31), (-34, -31), (34, -31), (34, 31)])
sketch20.addConstraint(Sketcher.Constraint("Vertical", 0))
sketch20.addConstraint(Sketcher.Constraint("Horizontal", 1))
sketch20.addConstraint(Sketcher.Constraint("Vertical", 2))
sketch20.addConstraint(Sketcher.Constraint("Horizontal", 3))
sketch20.addConstraint(Sketcher.Constraint("Symmetric", 0, 2, 2, 2, -1, 1))
sketch20.addConstraint(Sketcher.Constraint("DistanceX", 1, 1, 1, 2, 67.0))
sketch20.addConstraint(Sketcher.Constraint("DistanceY", 0, 2, 0, 1, 62.0))
pad7 = doc.addObject("PartDesign::Pad", "Pad006")
body.addObject(pad7)
pad7.Profile = sketch20
pad7.Length = 3
pad7.Reversed = True

sketch21 = doc.addObject("Sketcher::SketchObject", "Sketch020")
body.addObject(sketch21)
sketch21.AttachmentSupport = (doc.XZ_Plane, [""])
sketch21.MapMode = "FlatFace"
sketch21.AttachmentOffset = App.Placement(App.Vector(0, 0, -83), App.Rotation())
sketch21.addGeometry(Part.Circle(App.Vector(0, 0, 0), App.Vector(0, 0, 1), 10), False)
sketch21.addGeometry(Part.Circle(App.Vector(-20, -19, 0), App.Vector(0, 0, 1), 2.8), False)
sketch21.addGeometry(Part.Circle(App.Vector(-20, 19, 0), App.Vector(0, 0, 1), 2.8), False)
sketch21.addGeometry(Part.Circle(App.Vector(20, 19, 0), App.Vector(0, 0, 1), 2.8), False)
sketch21.addGeometry(Part.Circle(App.Vector(20, -19, 0), App.Vector(0, 0, 1), 2.8), False)
sketch21.addConstraint(Sketcher.Constraint("Coincident", 0, 3, -1, 1))
sketch21.addConstraint(Sketcher.Constraint("Equal", 1, 2))
sketch21.addConstraint(Sketcher.Constraint("Equal", 2, 3))
sketch21.addConstraint(Sketcher.Constraint("Equal", 3, 4))
sketch21.addConstraint(Sketcher.Constraint("Symmetric", 1, 3, 3, 3, -1, 1))
sketch21.addConstraint(Sketcher.Constraint("Symmetric", 2, 3, 4, 3, -1, 1))
sketch21.addConstraint(Sketcher.Constraint("Symmetric", 2, 3, 3, 3, -2))
sketch21.addConstraint(Sketcher.Constraint("Diameter", 0, 20.0))
sketch21.addConstraint(Sketcher.Constraint("Diameter", 1, 5.5))
sketch21.addConstraint(Sketcher.Constraint("DistanceX", 1, 3, -1, 1, 20.0))
sketch21.addConstraint(Sketcher.Constraint("DistanceY", 1, 3, -1, 1, 19.0))
pocket14 = doc.addObject("PartDesign::Pocket", "Pocket013")
body.addObject(pocket14)
pocket14.Profile = sketch21
pocket14.Type = "ThroughAll"
pocket14.Reversed = True

sketch22 = doc.addObject("Sketcher::SketchObject", "Sketch021")
body.addObject(sketch22)
sketch22.AttachmentSupport = (doc.YZ_Plane, [""])
sketch22.MapMode = "FlatFace"
sketch22.AttachmentOffset = App.Placement(App.Vector(0, 0, 57), App.Rotation())
add_polygon(sketch22, [(148, 19), (84, 19), (84, -19), (148, -19)])
sketch22.addConstraint(Sketcher.Constraint("Horizontal", 0))
sketch22.addConstraint(Sketcher.Constraint("Vertical", 1))
sketch22.addConstraint(Sketcher.Constraint("Horizontal", 2))
sketch22.addConstraint(Sketcher.Constraint("Vertical", 3))
sketch22.addConstraint(Sketcher.Constraint("DistanceX", 0, 2, 0, 1, 64.0))
sketch22.addConstraint(Sketcher.Constraint("DistanceY", 1, 2, 1, 1, 38.0))
sketch22.addConstraint(Sketcher.Constraint("DistanceX", -1, 1, 0, 2, 84.0))
sketch22.addConstraint(Sketcher.Constraint("DistanceY", -1, 1, 0, 2, 19.0))
pocket15 = doc.addObject("PartDesign::Pocket", "Pocket014")
body.addObject(pocket15)
pocket15.Profile = sketch22
pocket15.Length = 115

doc.recompute()
